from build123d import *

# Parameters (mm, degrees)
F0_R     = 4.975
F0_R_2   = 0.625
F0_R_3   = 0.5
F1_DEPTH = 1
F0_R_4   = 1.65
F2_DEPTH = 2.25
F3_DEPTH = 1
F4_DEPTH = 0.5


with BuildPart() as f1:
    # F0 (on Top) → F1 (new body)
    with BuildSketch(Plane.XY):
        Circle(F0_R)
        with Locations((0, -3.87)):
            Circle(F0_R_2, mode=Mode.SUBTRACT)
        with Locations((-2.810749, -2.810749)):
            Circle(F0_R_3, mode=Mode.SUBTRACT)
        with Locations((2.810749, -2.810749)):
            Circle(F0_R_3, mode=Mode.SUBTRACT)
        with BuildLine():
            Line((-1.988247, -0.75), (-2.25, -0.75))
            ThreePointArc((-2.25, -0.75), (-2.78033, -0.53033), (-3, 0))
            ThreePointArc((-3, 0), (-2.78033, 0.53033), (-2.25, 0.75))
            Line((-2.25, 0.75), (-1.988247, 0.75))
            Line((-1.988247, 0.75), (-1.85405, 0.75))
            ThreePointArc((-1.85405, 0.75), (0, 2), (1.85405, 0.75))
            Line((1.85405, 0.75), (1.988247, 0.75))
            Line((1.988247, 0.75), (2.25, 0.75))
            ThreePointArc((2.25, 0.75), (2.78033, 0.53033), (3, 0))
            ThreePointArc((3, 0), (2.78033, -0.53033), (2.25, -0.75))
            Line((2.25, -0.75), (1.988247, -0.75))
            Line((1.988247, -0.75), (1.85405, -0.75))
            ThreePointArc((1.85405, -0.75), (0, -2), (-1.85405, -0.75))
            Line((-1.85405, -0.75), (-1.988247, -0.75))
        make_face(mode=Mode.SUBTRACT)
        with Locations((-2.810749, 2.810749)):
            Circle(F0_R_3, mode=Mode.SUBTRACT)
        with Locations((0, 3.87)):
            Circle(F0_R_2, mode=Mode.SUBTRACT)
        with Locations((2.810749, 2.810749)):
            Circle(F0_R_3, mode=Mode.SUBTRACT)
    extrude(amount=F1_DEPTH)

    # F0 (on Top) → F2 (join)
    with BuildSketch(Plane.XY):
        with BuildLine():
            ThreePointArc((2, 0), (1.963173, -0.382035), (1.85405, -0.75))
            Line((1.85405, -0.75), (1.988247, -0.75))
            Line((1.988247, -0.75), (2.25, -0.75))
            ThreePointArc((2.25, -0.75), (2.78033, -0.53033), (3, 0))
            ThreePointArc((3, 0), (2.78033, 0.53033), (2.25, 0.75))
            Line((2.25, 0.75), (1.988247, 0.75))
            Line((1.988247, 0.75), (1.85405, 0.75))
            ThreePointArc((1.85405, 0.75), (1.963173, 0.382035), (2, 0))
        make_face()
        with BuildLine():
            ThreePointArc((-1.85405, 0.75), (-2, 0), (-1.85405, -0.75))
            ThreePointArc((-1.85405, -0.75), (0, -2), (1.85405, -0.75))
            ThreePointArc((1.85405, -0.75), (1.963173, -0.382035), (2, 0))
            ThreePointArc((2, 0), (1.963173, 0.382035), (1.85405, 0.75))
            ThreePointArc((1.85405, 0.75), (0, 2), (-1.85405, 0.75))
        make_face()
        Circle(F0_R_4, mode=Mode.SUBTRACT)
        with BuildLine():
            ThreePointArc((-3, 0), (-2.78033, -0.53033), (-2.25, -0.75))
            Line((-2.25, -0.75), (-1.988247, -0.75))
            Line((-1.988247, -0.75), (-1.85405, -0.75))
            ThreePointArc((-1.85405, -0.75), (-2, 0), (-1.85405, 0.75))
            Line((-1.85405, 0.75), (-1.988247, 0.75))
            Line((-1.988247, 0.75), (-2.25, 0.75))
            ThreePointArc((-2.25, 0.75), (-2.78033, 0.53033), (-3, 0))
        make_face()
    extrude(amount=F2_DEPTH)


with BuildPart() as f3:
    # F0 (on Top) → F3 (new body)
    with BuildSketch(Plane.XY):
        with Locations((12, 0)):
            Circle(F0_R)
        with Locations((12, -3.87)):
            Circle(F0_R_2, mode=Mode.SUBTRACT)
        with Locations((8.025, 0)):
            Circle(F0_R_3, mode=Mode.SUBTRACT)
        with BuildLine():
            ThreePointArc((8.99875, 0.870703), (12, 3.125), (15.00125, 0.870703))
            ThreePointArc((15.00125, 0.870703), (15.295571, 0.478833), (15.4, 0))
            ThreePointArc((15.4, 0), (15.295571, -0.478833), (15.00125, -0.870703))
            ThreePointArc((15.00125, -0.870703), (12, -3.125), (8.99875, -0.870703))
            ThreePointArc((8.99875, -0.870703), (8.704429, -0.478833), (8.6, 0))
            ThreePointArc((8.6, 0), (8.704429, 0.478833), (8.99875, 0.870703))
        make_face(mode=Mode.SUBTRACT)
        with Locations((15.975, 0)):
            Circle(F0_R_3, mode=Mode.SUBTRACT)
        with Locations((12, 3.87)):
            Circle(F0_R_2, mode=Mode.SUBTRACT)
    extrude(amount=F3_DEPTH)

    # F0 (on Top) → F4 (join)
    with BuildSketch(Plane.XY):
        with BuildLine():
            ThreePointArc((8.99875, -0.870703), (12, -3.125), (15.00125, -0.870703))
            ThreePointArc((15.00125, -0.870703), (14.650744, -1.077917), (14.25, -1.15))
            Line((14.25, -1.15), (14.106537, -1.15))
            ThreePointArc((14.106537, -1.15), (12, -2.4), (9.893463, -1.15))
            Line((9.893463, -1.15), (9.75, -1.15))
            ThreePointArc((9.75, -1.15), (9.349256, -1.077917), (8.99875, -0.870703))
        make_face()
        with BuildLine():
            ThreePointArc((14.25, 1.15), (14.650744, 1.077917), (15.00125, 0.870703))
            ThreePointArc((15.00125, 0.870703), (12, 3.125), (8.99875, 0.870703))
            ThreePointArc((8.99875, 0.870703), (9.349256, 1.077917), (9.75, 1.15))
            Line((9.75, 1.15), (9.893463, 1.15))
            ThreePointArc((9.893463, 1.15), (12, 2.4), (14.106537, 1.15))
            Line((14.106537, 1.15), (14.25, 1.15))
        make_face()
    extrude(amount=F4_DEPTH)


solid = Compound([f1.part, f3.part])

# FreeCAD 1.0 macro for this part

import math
import FreeCAD as App
import Part
import Sketcher

V = App.Vector

doc = App.newDocument("Part")
body = doc.addObject("PartDesign::Body", "Body")

# Sketch on XY plane
sketch1 = body.newObject("Sketcher::SketchObject", "Sketch")
sketch1.AttachmentSupport = (doc.getObject("XY_Plane"), [""])
sketch1.MapMode = "FlatFace"
sketch1.addGeometry(Part.Circle(V(0, 0, 0), V(0, 0, 1), 4.97), False)
sketch1.addGeometry(Part.Circle(V(-2.81, -2.81, 0), V(0, 0, 1), 0.5), False)
sketch1.addGeometry(Part.Circle(V(0, -3.87, 0), V(0, 0, 1), 0.62), False)
sketch1.addGeometry(Part.Circle(V(2.81, -2.81, 0), V(0, 0, 1), 0.5), False)
sketch1.addGeometry(Part.Circle(V(-2.81, 2.81, 0), V(0, 0, 1), 0.5), False)
sketch1.addGeometry(Part.LineSegment(V(-1.85, -0.75, 0), V(-2.25, -0.75, 0)), False)
sketch1.addGeometry(Part.ArcOfCircle(Part.Circle(V(-2.25, 0, 0), V(0, 0, 1), 0.75), math.radians(-180), math.radians(-90)), False)
sketch1.addGeometry(Part.ArcOfCircle(Part.Circle(V(-2.25, 0, 0), V(0, 0, 1), 0.75), math.radians(90), math.radians(180)), False)
sketch1.addGeometry(Part.LineSegment(V(-2.25, 0.75, 0), V(-1.85, 0.75, 0)), False)
sketch1.addGeometry(Part.ArcOfCircle(Part.Circle(V(0, 0, 0), V(0, 0, 1), 2), math.radians(22), math.radians(158)), False)
sketch1.addGeometry(Part.LineSegment(V(1.85, 0.75, 0), V(2.25, 0.75, 0)), False)
sketch1.addGeometry(Part.ArcOfCircle(Part.Circle(V(2.25, 0, 0), V(0, 0, 1), 0.75), math.radians(0), math.radians(90)), False)
sketch1.addGeometry(Part.ArcOfCircle(Part.Circle(V(2.25, 0, 0), V(0, 0, 1), 0.75), math.radians(-90), math.radians(0)), False)
sketch1.addGeometry(Part.LineSegment(V(2.25, -0.75, 0), V(1.85, -0.75, 0)), False)
sketch1.addGeometry(Part.ArcOfCircle(Part.Circle(V(0, 0, 0), V(0, 0, 1), 2), math.radians(-158), math.radians(-22)), False)
sketch1.addGeometry(Part.Circle(V(0, 3.87, 0), V(0, 0, 1), 0.62), False)
sketch1.addGeometry(Part.Circle(V(2.81, 2.81, 0), V(0, 0, 1), 0.5), False)
sketch1.addConstraint(Sketcher.Constraint("Tangent", 5, 2, 6, 2))
sketch1.addConstraint(Sketcher.Constraint("Tangent", 6, 1, 7, 2))
sketch1.addConstraint(Sketcher.Constraint("Tangent", 7, 1, 8, 1))
sketch1.addConstraint(Sketcher.Constraint("Coincident", 8, 2, 9, 2))
sketch1.addConstraint(Sketcher.Constraint("Coincident", 9, 1, 10, 1))
sketch1.addConstraint(Sketcher.Constraint("Tangent", 10, 2, 11, 2))
sketch1.addConstraint(Sketcher.Constraint("Tangent", 11, 1, 12, 2))
sketch1.addConstraint(Sketcher.Constraint("Tangent", 12, 1, 13, 1))
sketch1.addConstraint(Sketcher.Constraint("Coincident", 13, 2, 14, 2))
sketch1.addConstraint(Sketcher.Constraint("Coincident", 14, 1, 5, 1))
sketch1.addConstraint(Sketcher.Constraint("Horizontal", 5))
sketch1.addConstraint(Sketcher.Constraint("Horizontal", 8))
sketch1.addConstraint(Sketcher.Constraint("Horizontal", 10))
sketch1.addConstraint(Sketcher.Constraint("Horizontal", 13))
sketch1.addConstraint(Sketcher.Constraint("Coincident", 0, 3, -1, 1))
sketch1.addConstraint(Sketcher.Constraint("Coincident", 9, 3, -1, 1))
sketch1.addConstraint(Sketcher.Constraint("Coincident", 14, 3, -1, 1))
sketch1.addConstraint(Sketcher.Constraint("Equal", 1, 3))
sketch1.addConstraint(Sketcher.Constraint("Equal", 3, 4))
sketch1.addConstraint(Sketcher.Constraint("Equal", 6, 7))
sketch1.addConstraint(Sketcher.Constraint("Equal", 7, 11))
sketch1.addConstraint(Sketcher.Constraint("Equal", 11, 12))
sketch1.addConstraint(Sketcher.Constraint("Equal", 9, 14))
sketch1.addConstraint(Sketcher.Constraint("Equal", 2, 15))
sketch1.addConstraint(Sketcher.Constraint("Equal", 4, 16))
sketch1.addConstraint(Sketcher.Constraint("Symmetric", 3, 3, 4, 3, -1, 1))
sketch1.addConstraint(Sketcher.Constraint("Symmetric", 6, 3, 11, 3, -1, 1))
sketch1.addConstraint(Sketcher.Constraint("Symmetric", 2, 3, 15, 3, -1, 1))
sketch1.addConstraint(Sketcher.Constraint("Symmetric", 1, 3, 16, 3, -1, 1))
sketch1.addConstraint(Sketcher.Constraint("Symmetric", 1, 3, 3, 3, -2))
sketch1.addConstraint(Sketcher.Constraint("PointOnObject", 2, 3, -2))
sketch1.addConstraint(Sketcher.Constraint("PointOnObject", 6, 3, -1))
sketch1.addConstraint(Sketcher.Constraint("PointOnObject", 6, 1, -1))
sketch1.addConstraint(Sketcher.Constraint("PointOnObject", 11, 1, -1))
sketch1.addConstraint(Sketcher.Constraint("Diameter", 1, 1.0))
sketch1.addConstraint(Sketcher.Constraint("Radius", 9, 2.000001))
sketch1.addConstraint(Sketcher.Constraint("Diameter", 0, 9.95))
sketch1.addConstraint(Sketcher.Constraint("Diameter", 2, 1.25))
sketch1.addConstraint(Sketcher.Constraint("Radius", 6, 0.75))
sketch1.addConstraint(Sketcher.Constraint("DistanceX", 6, 1, -1, 1, 3.0))
sketch1.addConstraint(Sketcher.Constraint("DistanceY", 2, 3, -1, 1, 3.87))
sketch1.addConstraint(Sketcher.Constraint("DistanceX", 1, 3, -1, 1, 2.810749))
sketch1.addConstraint(Sketcher.Constraint("DistanceY", 1, 3, -1, 1, 2.810749))
pad1 = body.newObject("PartDesign::Pad", "Pad")
pad1.Profile = sketch1
pad1.Length = 1

# Sketch on XY plane
sketch2 = body.newObject("Sketcher::SketchObject", "Sketch001")
sketch2.AttachmentSupport = (doc.getObject("XY_Plane"), [""])
sketch2.MapMode = "FlatFace"
sketch2.addGeometry(Part.ArcOfCircle(Part.Circle(V(0, 0, 0), V(0, 0, 1), 2), math.radians(-158), math.radians(-22)), False)
sketch2.addGeometry(Part.LineSegment(V(1.85, -0.75, 0), V(2.25, -0.75, 0)), False)
sketch2.addGeometry(Part.ArcOfCircle(Part.Circle(V(2.25, 0, 0), V(0, 0, 1), 0.75), math.radians(-90), math.radians(0)), False)
sketch2.addGeometry(Part.ArcOfCircle(Part.Circle(V(2.25, 0, 0), V(0, 0, 1), 0.75), math.radians(0), math.radians(90)), False)
sketch2.addGeometry(Part.LineSegment(V(2.25, 0.75, 0), V(1.85, 0.75, 0)), False)
sketch2.addGeometry(Part.ArcOfCircle(Part.Circle(V(0, 0, 0), V(0, 0, 1), 2), math.radians(22), math.radians(158)), False)
sketch2.addGeometry(Part.LineSegment(V(-1.85, 0.75, 0), V(-2.25, 0.75, 0)), False)
sketch2.addGeometry(Part.ArcOfCircle(Part.Circle(V(-2.25, 0, 0), V(0, 0, 1), 0.75), math.radians(90), math.radians(180)), False)
sketch2.addGeometry(Part.ArcOfCircle(Part.Circle(V(-2.25, 0, 0), V(0, 0, 1), 0.75), math.radians(-180), math.radians(-90)), False)
sketch2.addGeometry(Part.LineSegment(V(-2.25, -0.75, 0), V(-1.85, -0.75, 0)), False)
sketch2.addGeometry(Part.Circle(V(0, 0, 0), V(0, 0, 1), 1.65), False)
sketch2.addConstraint(Sketcher.Constraint("Coincident", 0, 2, 1, 1))
sketch2.addConstraint(Sketcher.Constraint("Tangent", 1, 2, 2, 1))
sketch2.addConstraint(Sketcher.Constraint("Tangent", 2, 2, 3, 1))
sketch2.addConstraint(Sketcher.Constraint("Tangent", 3, 2, 4, 1))
sketch2.addConstraint(Sketcher.Constraint("Coincident", 4, 2, 5, 1))
sketch2.addConstraint(Sketcher.Constraint("Coincident", 5, 2, 6, 1))
sketch2.addConstraint(Sketcher.Constraint("Tangent", 6, 2, 7, 1))
sketch2.addConstraint(Sketcher.Constraint("Tangent", 7, 2, 8, 1))
sketch2.addConstraint(Sketcher.Constraint("Tangent", 8, 2, 9, 1))
sketch2.addConstraint(Sketcher.Constraint("Coincident", 9, 2, 0, 1))
sketch2.addConstraint(Sketcher.Constraint("Horizontal", 1))
sketch2.addConstraint(Sketcher.Constraint("Horizontal", 4))
sketch2.addConstraint(Sketcher.Constraint("Horizontal", 6))
sketch2.addConstraint(Sketcher.Constraint("Horizontal", 9))
sketch2.addConstraint(Sketcher.Constraint("Coincident", 0, 3, -1, 1))
sketch2.addConstraint(Sketcher.Constraint("Coincident", 5, 3, -1, 1))
sketch2.addConstraint(Sketcher.Constraint("Coincident", 10, 3, -1, 1))
sketch2.addConstraint(Sketcher.Constraint("Equal", 2, 3))
sketch2.addConstraint(Sketcher.Constraint("Equal", 0, 5))
sketch2.addConstraint(Sketcher.Constraint("Equal", 3, 7))
sketch2.addConstraint(Sketcher.Constraint("Equal", 7, 8))
sketch2.addConstraint(Sketcher.Constraint("Symmetric", 2, 3, 7, 3, -1, 1))
sketch2.addConstraint(Sketcher.Constraint("PointOnObject", 2, 3, -1))
sketch2.addConstraint(Sketcher.Constraint("PointOnObject", 2, 2, -1))
sketch2.addConstraint(Sketcher.Constraint("PointOnObject", 7, 2, -1))
sketch2.addConstraint(Sketcher.Constraint("Radius", 0, 2.000001))
sketch2.addConstraint(Sketcher.Constraint("Diameter", 10, 3.3))
sketch2.addConstraint(Sketcher.Constraint("Radius", 2, 0.75))
sketch2.addConstraint(Sketcher.Constraint("DistanceX", -1, 1, 2, 2, 3.0))
pad2 = body.newObject("PartDesign::Pad", "Pad001")
pad2.Profile = sketch2
pad2.Length = 2.25
body2 = doc.addObject("PartDesign::Body", "Body001")

# Sketch on XY plane
sketch3 = body2.newObject("Sketcher::SketchObject", "Sketch002")
sketch3.AttachmentSupport = (doc.getObject("XY_Plane001"), [""])
sketch3.MapMode = "FlatFace"
sketch3.addGeometry(Part.Circle(V(12, 0, 0), V(0, 0, 1), 5), False)
sketch3.addGeometry(Part.Circle(V(12, -3.9, 0), V(0, 0, 1), 0.6), False)
sketch3.addGeometry(Part.Circle(V(8, 0, 0), V(0, 0, 1), 0.5), False)
sketch3.addGeometry(Part.ArcOfCircle(Part.Circle(V(9.8, 0, 0), V(0, 0, 1), 1.2), math.radians(131), math.radians(180)), False)
sketch3.addGeometry(Part.ArcOfCircle(Part.Circle(V(12, 0, 0), V(0, 0, 1), 3.1), math.radians(16), math.radians(164)), False)
sketch3.addGeometry(Part.ArcOfCircle(Part.Circle(V(14.2, 0, 0), V(0, 0, 1), 1.2), math.radians(0), math.radians(49)), False)
sketch3.addGeometry(Part.ArcOfCircle(Part.Circle(V(14.2, 0, 0), V(0, 0, 1), 1.2), math.radians(-49), math.radians(0)), False)
sketch3.addGeometry(Part.ArcOfCircle(Part.Circle(V(12, 0, 0), V(0, 0, 1), 3.1), math.radians(-164), math.radians(-16)), False)
sketch3.addGeometry(Part.ArcOfCircle(Part.Circle(V(9.8, 0, 0), V(0, 0, 1), 1.2), math.radians(-180), math.radians(-131)), False)
sketch3.addGeometry(Part.Circle(V(16, 0, 0), V(0, 0, 1), 0.5), False)
sketch3.addGeometry(Part.Circle(V(12, 3.9, 0), V(0, 0, 1), 0.6), False)
sketch3.addConstraint(Sketcher.Constraint("Coincident", 3, 1, 4, 2))
sketch3.addConstraint(Sketcher.Constraint("Coincident", 4, 1, 5, 2))
sketch3.addConstraint(Sketcher.Constraint("Tangent", 5, 1, 6, 2))
sketch3.addConstraint(Sketcher.Constraint("Coincident", 6, 1, 7, 2))
sketch3.addConstraint(Sketcher.Constraint("Coincident", 7, 1, 8, 2))
sketch3.addConstraint(Sketcher.Constraint("Tangent", 8, 1, 3, 2))
sketch3.addConstraint(Sketcher.Constraint("Coincident", 4, 3, 0, 3))
sketch3.addConstraint(Sketcher.Constraint("Coincident", 7, 3, 0, 3))
sketch3.addConstraint(Sketcher.Constraint("Equal", 3, 5))
sketch3.addConstraint(Sketcher.Constraint("Equal", 5, 6))
sketch3.addConstraint(Sketcher.Constraint("Equal", 4, 7))
sketch3.addConstraint(Sketcher.Constraint("Equal", 6, 8))
sketch3.addConstraint(Sketcher.Constraint("Equal", 2, 9))
sketch3.addConstraint(Sketcher.Constraint("Equal", 1, 10))
sketch3.addConstraint(Sketcher.Constraint("Symmetric", 1, 3, 10, 3, -1))
sketch3.addConstraint(Sketcher.Constraint("Symmetric", 4, 1, 6, 1, -1))
sketch3.addConstraint(Sketcher.Constraint("PointOnObject", 2, 3, -1))
sketch3.addConstraint(Sketcher.Constraint("PointOnObject", 3, 3, -1))
sketch3.addConstraint(Sketcher.Constraint("PointOnObject", 9, 3, -1))
sketch3.addConstraint(Sketcher.Constraint("PointOnObject", 5, 1, -1))
sketch3.addConstraint(Sketcher.Constraint("PointOnObject", 8, 1, -1))
sketch3.addConstraint(Sketcher.Constraint("Horizontal", 3, 1, 4, 1))
sketch3.addConstraint(Sketcher.Constraint("Vertical", 0, 3, 1, 3))
sketch3.addConstraint(Sketcher.Constraint("Diameter", 2, 1.0))
sketch3.addConstraint(Sketcher.Constraint("Diameter", 0, 9.95))
sketch3.addConstraint(Sketcher.Constraint("Diameter", 1, 1.25))
sketch3.addConstraint(Sketcher.Constraint("Radius", 3, 1.150002))
sketch3.addConstraint(Sketcher.Constraint("DistanceX", -1, 1, 0, 3, 12.0))
sketch3.addConstraint(Sketcher.Constraint("Radius", 4, 3.125))
sketch3.addConstraint(Sketcher.Constraint("DistanceX", -1, 1, 5, 1, 15.4))
sketch3.addConstraint(Sketcher.Constraint("DistanceY", 1, 3, -1, 1, 3.87))
sketch3.addConstraint(Sketcher.Constraint("DistanceX", -1, 1, 2, 3, 8.025))
sketch3.addConstraint(Sketcher.Constraint("DistanceX", -1, 1, 9, 3, 15.975))
pad3 = body2.newObject("PartDesign::Pad", "Pad002")
pad3.Profile = sketch3
pad3.Length = 1

# Sketch on XY plane
sketch4 = body2.newObject("Sketcher::SketchObject", "Sketch003")
sketch4.AttachmentSupport = (doc.getObject("XY_Plane001"), [""])
sketch4.MapMode = "FlatFace"
sketch4.addGeometry(Part.ArcOfCircle(Part.Circle(V(12, 0, 0), V(0, 0, 1), 3.13), math.radians(-164), math.radians(-16)), False)
sketch4.addGeometry(Part.ArcOfCircle(Part.Circle(V(14.25, 0, 0), V(0, 0, 1), 1.15), math.radians(-90), math.radians(-49)), False)
sketch4.addGeometry(Part.LineSegment(V(14.25, -1.15, 0), V(14.11, -1.15, 0)), False)
sketch4.addGeometry(Part.ArcOfCircle(Part.Circle(V(12, 0, 0), V(0, 0, 1), 2.4), math.radians(-151), math.radians(-29)), False)
sketch4.addGeometry(Part.LineSegment(V(9.89, -1.15, 0), V(9.75, -1.15, 0)), False)
sketch4.addGeometry(Part.ArcOfCircle(Part.Circle(V(9.75, 0, 0), V(0, 0, 1), 1.15), math.radians(-131), math.radians(-90)), False)
sketch4.addGeometry(Part.ArcOfCircle(Part.Circle(V(14.25, 0, 0), V(0, 0, 1), 1.15), math.radians(49), math.radians(90)), False)
sketch4.addGeometry(Part.ArcOfCircle(Part.Circle(V(12, 0, 0), V(0, 0, 1), 3.13), math.radians(16), math.radians(164)), False)
sketch4.addGeometry(Part.ArcOfCircle(Part.Circle(V(9.75, 0, 0), V(0, 0, 1), 1.15), math.radians(90), math.radians(131)), False)
sketch4.addGeometry(Part.LineSegment(V(9.75, 1.15, 0), V(9.89, 1.15, 0)), False)
sketch4.addGeometry(Part.ArcOfCircle(Part.Circle(V(12, 0, 0), V(0, 0, 1), 2.4), math.radians(29), math.radians(151)), False)
sketch4.addGeometry(Part.LineSegment(V(14.11, 1.15, 0), V(14.25, 1.15, 0)), False)
sketch4.addConstraint(Sketcher.Constraint("Coincident", 0, 2, 1, 2))
sketch4.addConstraint(Sketcher.Constraint("Tangent", 1, 1, 2, 1))
sketch4.addConstraint(Sketcher.Constraint("Coincident", 2, 2, 3, 2))
sketch4.addConstraint(Sketcher.Constraint("Coincident", 3, 1, 4, 1))
sketch4.addConstraint(Sketcher.Constraint("Tangent", 4, 2, 5, 2))
sketch4.addConstraint(Sketcher.Constraint("Coincident", 5, 1, 0, 1))
sketch4.addConstraint(Sketcher.Constraint("Coincident", 6, 1, 7, 1))
sketch4.addConstraint(Sketcher.Constraint("Coincident", 7, 2, 8, 2))
sketch4.addConstraint(Sketcher.Constraint("Tangent", 8, 1, 9, 1))
sketch4.addConstraint(Sketcher.Constraint("Coincident", 9, 2, 10, 2))
sketch4.addConstraint(Sketcher.Constraint("Coincident", 10, 1, 11, 1))
sketch4.addConstraint(Sketcher.Constraint("Tangent", 11, 2, 6, 2))
sketch4.addConstraint(Sketcher.Constraint("Horizontal", 2))
sketch4.addConstraint(Sketcher.Constraint("Horizontal", 4))
sketch4.addConstraint(Sketcher.Constraint("Horizontal", 9))
sketch4.addConstraint(Sketcher.Constraint("Horizontal", 11))
sketch4.addConstraint(Sketcher.Constraint("Coincident", 3, 3, 0, 3))
sketch4.addConstraint(Sketcher.Constraint("Coincident", 6, 3, 1, 3))
sketch4.addConstraint(Sketcher.Constraint("Coincident", 7, 3, 0, 3))
sketch4.addConstraint(Sketcher.Constraint("Coincident", 8, 3, 5, 3))
sketch4.addConstraint(Sketcher.Constraint("Coincident", 10, 3, 0, 3))
sketch4.addConstraint(Sketcher.Constraint("Equal", 1, 5))
sketch4.addConstraint(Sketcher.Constraint("Equal", 5, 6))
sketch4.addConstraint(Sketcher.Constraint("Equal", 0, 7))
sketch4.addConstraint(Sketcher.Constraint("Equal", 6, 8))
sketch4.addConstraint(Sketcher.Constraint("Equal", 3, 10))
sketch4.addConstraint(Sketcher.Constraint("Symmetric", 0, 2, 6, 1, -1))
sketch4.addConstraint(Sketcher.Constraint("Horizontal", 1, 3, 5, 3))
sketch4.addConstraint(Sketcher.Constraint("Horizontal", 0, 2, 5, 1))
sketch4.addConstraint(Sketcher.Constraint("Radius", 3, 2.399999))
sketch4.addConstraint(Sketcher.Constraint("DistanceX", -1, 1, 0, 3, 12.0))
sketch4.addConstraint(Sketcher.Constraint("Radius", 0, 3.125))
sketch4.addConstraint(Sketcher.Constraint("DistanceY", 4, 2, 8, 1, 2.3))
sketch4.addConstraint(Sketcher.Constraint("DistanceX", -1, 1, 1, 3, 14.250002))
pad4 = body2.newObject("PartDesign::Pad", "Pad003")
pad4.Profile = sketch4
pad4.Length = 0.5

doc.recompute()
